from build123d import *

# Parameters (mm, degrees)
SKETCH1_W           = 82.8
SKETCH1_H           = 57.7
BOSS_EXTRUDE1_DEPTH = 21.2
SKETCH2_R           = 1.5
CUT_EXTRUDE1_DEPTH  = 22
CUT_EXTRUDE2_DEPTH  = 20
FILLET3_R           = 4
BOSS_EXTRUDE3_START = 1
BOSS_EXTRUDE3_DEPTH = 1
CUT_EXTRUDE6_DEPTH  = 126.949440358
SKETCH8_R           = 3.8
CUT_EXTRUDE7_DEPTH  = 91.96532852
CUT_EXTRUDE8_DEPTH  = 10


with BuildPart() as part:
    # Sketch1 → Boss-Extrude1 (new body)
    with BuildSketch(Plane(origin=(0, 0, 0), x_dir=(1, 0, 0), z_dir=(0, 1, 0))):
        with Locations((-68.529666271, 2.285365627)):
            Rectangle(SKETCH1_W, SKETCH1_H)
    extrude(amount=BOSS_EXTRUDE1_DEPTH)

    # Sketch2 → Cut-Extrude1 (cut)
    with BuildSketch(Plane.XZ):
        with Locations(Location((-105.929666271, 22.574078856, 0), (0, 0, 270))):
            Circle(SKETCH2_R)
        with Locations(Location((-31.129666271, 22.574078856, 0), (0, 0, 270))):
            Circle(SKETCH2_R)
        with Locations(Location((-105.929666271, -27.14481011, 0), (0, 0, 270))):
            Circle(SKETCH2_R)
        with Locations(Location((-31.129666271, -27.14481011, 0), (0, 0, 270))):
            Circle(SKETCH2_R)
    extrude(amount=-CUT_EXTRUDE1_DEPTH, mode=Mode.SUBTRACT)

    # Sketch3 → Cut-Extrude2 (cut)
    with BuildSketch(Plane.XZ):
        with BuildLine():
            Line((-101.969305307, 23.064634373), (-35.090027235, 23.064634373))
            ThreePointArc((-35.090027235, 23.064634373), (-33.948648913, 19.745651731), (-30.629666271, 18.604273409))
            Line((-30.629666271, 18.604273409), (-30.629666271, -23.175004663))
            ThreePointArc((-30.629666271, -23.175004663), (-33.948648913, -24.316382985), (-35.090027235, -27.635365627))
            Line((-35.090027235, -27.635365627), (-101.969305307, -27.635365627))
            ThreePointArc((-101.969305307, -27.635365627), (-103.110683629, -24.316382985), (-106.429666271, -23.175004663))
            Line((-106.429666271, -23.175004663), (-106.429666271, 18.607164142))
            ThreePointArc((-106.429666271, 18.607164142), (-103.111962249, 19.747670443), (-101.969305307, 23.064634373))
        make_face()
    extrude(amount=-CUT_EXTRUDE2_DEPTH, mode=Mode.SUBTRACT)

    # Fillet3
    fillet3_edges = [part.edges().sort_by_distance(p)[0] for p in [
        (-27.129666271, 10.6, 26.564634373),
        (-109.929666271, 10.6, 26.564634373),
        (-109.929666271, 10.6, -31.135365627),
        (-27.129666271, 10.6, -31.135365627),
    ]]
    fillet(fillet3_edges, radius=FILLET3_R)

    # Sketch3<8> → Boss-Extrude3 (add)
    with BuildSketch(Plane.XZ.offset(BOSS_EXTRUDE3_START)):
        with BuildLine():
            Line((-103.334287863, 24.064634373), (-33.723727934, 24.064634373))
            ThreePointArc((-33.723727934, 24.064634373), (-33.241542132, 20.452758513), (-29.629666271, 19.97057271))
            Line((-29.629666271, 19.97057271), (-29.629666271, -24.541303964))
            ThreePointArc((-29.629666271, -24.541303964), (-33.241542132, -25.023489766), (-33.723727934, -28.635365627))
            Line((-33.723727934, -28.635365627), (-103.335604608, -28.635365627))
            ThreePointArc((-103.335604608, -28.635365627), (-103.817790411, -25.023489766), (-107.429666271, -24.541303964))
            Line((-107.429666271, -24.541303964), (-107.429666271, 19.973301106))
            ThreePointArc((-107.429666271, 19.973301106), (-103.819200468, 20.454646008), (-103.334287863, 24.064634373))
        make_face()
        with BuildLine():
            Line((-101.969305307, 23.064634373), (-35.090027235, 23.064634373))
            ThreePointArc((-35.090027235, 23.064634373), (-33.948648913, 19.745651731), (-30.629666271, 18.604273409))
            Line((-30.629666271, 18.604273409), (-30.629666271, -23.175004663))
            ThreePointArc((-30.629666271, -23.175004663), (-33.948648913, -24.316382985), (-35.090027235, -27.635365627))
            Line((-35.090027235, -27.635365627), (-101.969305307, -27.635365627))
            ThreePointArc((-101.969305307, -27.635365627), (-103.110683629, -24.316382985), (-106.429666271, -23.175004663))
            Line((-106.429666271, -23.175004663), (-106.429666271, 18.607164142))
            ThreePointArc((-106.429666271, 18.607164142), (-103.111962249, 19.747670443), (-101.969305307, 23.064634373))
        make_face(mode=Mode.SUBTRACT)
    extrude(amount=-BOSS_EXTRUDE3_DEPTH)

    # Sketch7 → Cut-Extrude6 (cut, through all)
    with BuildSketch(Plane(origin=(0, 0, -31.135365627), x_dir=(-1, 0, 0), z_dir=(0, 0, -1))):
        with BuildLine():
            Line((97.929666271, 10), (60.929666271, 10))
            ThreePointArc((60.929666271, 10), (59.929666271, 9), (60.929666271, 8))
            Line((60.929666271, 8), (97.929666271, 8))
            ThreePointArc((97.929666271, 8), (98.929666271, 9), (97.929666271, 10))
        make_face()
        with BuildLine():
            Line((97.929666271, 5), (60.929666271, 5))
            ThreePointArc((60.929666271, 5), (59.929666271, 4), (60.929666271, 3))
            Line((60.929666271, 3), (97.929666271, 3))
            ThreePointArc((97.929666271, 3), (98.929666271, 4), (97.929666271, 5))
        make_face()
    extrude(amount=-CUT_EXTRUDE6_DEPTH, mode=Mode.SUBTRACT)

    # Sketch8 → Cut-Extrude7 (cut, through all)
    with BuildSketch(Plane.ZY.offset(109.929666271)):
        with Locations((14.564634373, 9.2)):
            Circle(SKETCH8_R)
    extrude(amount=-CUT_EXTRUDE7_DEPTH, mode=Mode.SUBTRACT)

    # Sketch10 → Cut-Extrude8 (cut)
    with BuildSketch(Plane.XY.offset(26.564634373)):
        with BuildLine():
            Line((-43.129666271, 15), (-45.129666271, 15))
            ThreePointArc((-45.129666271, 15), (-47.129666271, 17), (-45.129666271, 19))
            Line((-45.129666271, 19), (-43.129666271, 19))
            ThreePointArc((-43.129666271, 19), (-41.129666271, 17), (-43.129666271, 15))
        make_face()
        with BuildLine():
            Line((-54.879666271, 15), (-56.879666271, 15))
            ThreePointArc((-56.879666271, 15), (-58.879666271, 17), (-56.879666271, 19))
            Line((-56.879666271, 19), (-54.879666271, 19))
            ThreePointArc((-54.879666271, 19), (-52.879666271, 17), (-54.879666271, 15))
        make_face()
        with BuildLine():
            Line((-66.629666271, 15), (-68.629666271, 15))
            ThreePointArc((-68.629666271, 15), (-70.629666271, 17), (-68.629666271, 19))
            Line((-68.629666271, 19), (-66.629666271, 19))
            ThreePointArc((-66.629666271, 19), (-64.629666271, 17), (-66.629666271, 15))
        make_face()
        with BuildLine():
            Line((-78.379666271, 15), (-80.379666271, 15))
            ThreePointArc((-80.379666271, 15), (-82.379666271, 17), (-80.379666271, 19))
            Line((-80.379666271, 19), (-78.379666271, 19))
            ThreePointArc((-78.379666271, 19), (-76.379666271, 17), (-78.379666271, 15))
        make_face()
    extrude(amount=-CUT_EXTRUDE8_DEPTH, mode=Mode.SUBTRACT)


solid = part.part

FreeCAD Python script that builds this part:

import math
import FreeCAD as App
import Part
import Sketcher
from FreeCAD import Vector


def edges_at(feature, points):
    """Names of the edges that pass closest to the given points."""
    edges = feature.Shape.Edges
    near = lambda p: min(range(len(edges)), key=lambda i: edges[i].distToShape(Part.Vertex(*p))[0])
    return sorted({f"Edge{near(p) + 1}" for p in points})

doc = App.newDocument("Part")
body = doc.addObject("PartDesign::Body", "Body")

sketch1 = body.newObject("Sketcher::SketchObject", "Sketch")
sketch1.AttachmentSupport = (doc.getObject("XZ_Plane"), [""])
sketch1.MapMode = "FlatFace"
sketch1.addGeometry([
    Part.LineSegment(Vector(-110, -31, 0), Vector(-110, 27, 0)),
    Part.LineSegment(Vector(-110, 27, 0), Vector(-27, 27, 0)),
    Part.LineSegment(Vector(-27, 27, 0), Vector(-27, -31, 0)),
    Part.LineSegment(Vector(-27, -31, 0), Vector(-110, -31, 0)),
], False)
sketch1.addConstraint([
    Sketcher.Constraint("Coincident", 0, 2, 1, 1),
    Sketcher.Constraint("Coincident", 1, 2, 2, 1),
    Sketcher.Constraint("Coincident", 2, 2, 3, 1),
    Sketcher.Constraint("Coincident", 3, 2, 0, 1),
    Sketcher.Constraint("Vertical", 0),
    Sketcher.Constraint("Horizontal", 1),
    Sketcher.Constraint("Vertical", 2),
    Sketcher.Constraint("Horizontal", 3),
    Sketcher.Constraint("DistanceX", 1, 1, 1, 2, 82.8),
    Sketcher.Constraint("DistanceY", 0, 1, 0, 2, 57.7),
    Sketcher.Constraint("DistanceX", 0, 2, -1, 1, 109.929666),
    Sketcher.Constraint("DistanceY", -1, 1, 0, 2, 26.564634),
])
pad1 = body.newObject("PartDesign::Pad", "Pad")
pad1.Profile = sketch1
pad1.Length = 21.2
pad1.Reversed = True

sketch2 = body.newObject("Sketcher::SketchObject", "Sketch001")
sketch2.AttachmentSupport = (doc.getObject("XZ_Plane"), [""])
sketch2.MapMode = "FlatFace"
sketch2.addGeometry([
    Part.Circle(Vector(-105.9, 22.6, 0), Vector(0, 0, 1), 1.5),
    Part.Circle(Vector(-31.1, 22.6, 0), Vector(0, 0, 1), 1.5),
    Part.Circle(Vector(-105.9, -27.1, 0), Vector(0, 0, 1), 1.5),
    Part.Circle(Vector(-31.1, -27.1, 0), Vector(0, 0, 1), 1.5),
], False)
sketch2.addConstraint([
    Sketcher.Constraint("Equal", 0, 1),
    Sketcher.Constraint("Equal", 1, 2),
    Sketcher.Constraint("Equal", 2, 3),
    Sketcher.Constraint("Horizontal", 0, 3, 1, 3),
    Sketcher.Constraint("Horizontal", 2, 3, 3, 3),
    Sketcher.Constraint("Vertical", 0, 3, 2, 3),
    Sketcher.Constraint("Vertical", 1, 3, 3, 3),
    Sketcher.Constraint("Diameter", 0, 3.0),
    Sketcher.Constraint("DistanceX", 0, 3, 1, 3, 74.8),
    Sketcher.Constraint("DistanceY", -1, 1, 0, 3, 22.574079),
    Sketcher.Constraint("DistanceY", 2, 3, -1, 1, 27.14481),
    Sketcher.Constraint("DistanceX", 0, 3, -1, 1, 105.929666),
])
pocket1 = body.newObject("PartDesign::Pocket", "Pocket")
pocket1.Profile = sketch2
pocket1.Length = 22

sketch3 = body.newObject("Sketcher::SketchObject", "Sketch002")
sketch3.AttachmentSupport = (doc.getObject("XZ_Plane"), [""])
sketch3.MapMode = "FlatFace"
sketch3.addGeometry([
    Part.LineSegment(Vector(-35.1, 23.1, 0), Vector(-102, 23.1, 0)),
    Part.ArcOfCircle(Part.Circle(Vector(-105.9, 22.6, 0), Vector(0, 0, 1), 4), math.radians(-97), math.radians(7)),
    Part.LineSegment(Vector(-106.4, 18.6, 0), Vector(-106.4, -23.2, 0)),
    Part.ArcOfCircle(Part.Circle(Vector(-105.9, -27.1, 0), Vector(0, 0, 1), 4), math.radians(-7), math.radians(97)),
    Part.LineSegment(Vector(-102, -27.6, 0), Vector(-35.1, -27.6, 0)),
    Part.ArcOfCircle(Part.Circle(Vector(-31.1, -27.1, 0), Vector(0, 0, 1), 4), math.radians(83), math.radians(187)),
    Part.LineSegment(Vector(-30.6, -23.2, 0), Vector(-30.6, 18.6, 0)),
    Part.ArcOfCircle(Part.Circle(Vector(-31.1, 22.6, 0), Vector(0, 0, 1), 4), math.radians(173), math.radians(277)),
], False)
sketch3.addConstraint([
    Sketcher.Constraint("Coincident", 0, 2, 1, 2),
    Sketcher.Constraint("Coincident", 1, 1, 2, 1),
    Sketcher.Constraint("Coincident", 2, 2, 3, 2),
    Sketcher.Constraint("Coincident", 3, 1, 4, 1),
    Sketcher.Constraint("Coincident", 4, 2, 5, 2),
    Sketcher.Constraint("Coincident", 5, 1, 6, 1),
    Sketcher.Constraint("Coincident", 6, 2, 7, 2),
    Sketcher.Constraint("Coincident", 7, 1, 0, 1),
    Sketcher.Constraint("Horizontal", 0),
    Sketcher.Constraint("Vertical", 2),
    Sketcher.Constraint("Horizontal", 4),
    Sketcher.Constraint("Vertical", 6),
    Sketcher.Constraint("Equal", 1, 3),
    Sketcher.Constraint("Equal", 3, 5),
    Sketcher.Constraint("Equal", 5, 7),
    Sketcher.Constraint("Horizontal", 3, 3, 5, 3),
    Sketcher.Constraint("Horizontal", 2, 2, 5, 1),
    Sketcher.Constraint("Vertical", 5, 3, 7, 3),
    Sketcher.Constraint("Vertical", 0, 2, 3, 1),
    Sketcher.Constraint("Vertical", 4, 2, 7, 1),
    Sketcher.Constraint("Radius", 1, 4.0),
    Sketcher.Constraint("DistanceY", 3, 1, 0, 2, 50.7),
    Sketcher.Constraint("DistanceX", 0, 2, 0, 1, 66.879278),
    Sketcher.Constraint("DistanceY", 2, 2, 2, 1, 41.782169),
    Sketcher.Constraint("DistanceY", 6, 1, 6, 2, 41.779278),
    Sketcher.Constraint("DistanceX", 3, 3, -1, 1, 105.939111),
    Sketcher.Constraint("DistanceY", 3, 3, -1, 1, 27.14481),
    Sketcher.Constraint("DistanceX", 5, 3, -1, 1, 31.120222),
])
pocket2 = body.newObject("PartDesign::Pocket", "Pocket001")
pocket2.Profile = sketch3
pocket2.Length = 20
doc.recompute()

fillet = body.newObject("PartDesign::Fillet", "Fillet")
fillet.Base = (pocket2, edges_at(pocket2, [
    (-27.13, 10.6, 26.565),
    (-109.93, 10.6, 26.565),
    (-109.93, 10.6, -31.135),
    (-27.13, 10.6, -31.135),
]))
fillet.Radius = 4

sketch4 = body.newObject("Sketcher::SketchObject", "Sketch003")
sketch4.AttachmentSupport = (doc.getObject("XZ_Plane"), [""])
sketch4.MapMode = "FlatFace"
sketch4.AttachmentOffset = App.Placement(Vector(0, 0, 1), App.Rotation())
sketch4.addGeometry([
    Part.LineSegment(Vector(-33.7, 24.1, 0), Vector(-103.3, 24.1, 0)),
    Part.ArcOfCircle(Part.Circle(Vector(-105.9, 22.6, 0), Vector(0, 0, 1), 3), math.radians(-120), math.radians(30)),
    Part.LineSegment(Vector(-107.4, 20, 0), Vector(-107.4, -24.5, 0)),
    Part.ArcOfCircle(Part.Circle(Vector(-105.9, -27.1, 0), Vector(0, 0, 1), 3), math.radians(-30), math.radians(120)),
    Part.LineSegment(Vector(-103.3, -28.6, 0), Vector(-33.7, -28.6, 0)),
    Part.ArcOfCircle(Part.Circle(Vector(-31.1, -27.1, 0), Vector(0, 0, 1), 3), math.radians(60), math.radians(210)),
    Part.LineSegment(Vector(-29.6, -24.5, 0), Vector(-29.6, 20, 0)),
    Part.ArcOfCircle(Part.Circle(Vector(-31.1, 22.6, 0), Vector(0, 0, 1), 3), math.radians(150), math.radians(300)),
    Part.LineSegment(Vector(-102, 23.1, 0), Vector(-35.1, 23.1, 0)),
    Part.ArcOfCircle(Part.Circle(Vector(-31.1, 22.6, 0), Vector(0, 0, 1), 4), math.radians(173), math.radians(277)),
    Part.LineSegment(Vector(-30.6, 18.6, 0), Vector(-30.6, -23.2, 0)),
    Part.ArcOfCircle(Part.Circle(Vector(-31.1, -27.1, 0), Vector(0, 0, 1), 4), math.radians(83), math.radians(187)),
    Part.LineSegment(Vector(-35.1, -27.6, 0), Vector(-102, -27.6, 0)),
    Part.ArcOfCircle(Part.Circle(Vector(-105.9, -27.1, 0), Vector(0, 0, 1), 4), math.radians(-7), math.radians(97)),
    Part.LineSegment(Vector(-106.4, -23.2, 0), Vector(-106.4, 18.6, 0)),
    Part.ArcOfCircle(Part.Circle(Vector(-105.9, 22.6, 0), Vector(0, 0, 1), 4), math.radians(-97), math.radians(7)),
], False)
sketch4.addConstraint([
    Sketcher.Constraint("Coincident", 0, 2, 1, 2),
    Sketcher.Constraint("Coincident", 1, 1, 2, 1),
    Sketcher.Constraint("Coincident", 2, 2, 3, 2),
    Sketcher.Constraint("Coincident", 3, 1, 4, 1),
    Sketcher.Constraint("Coincident", 4, 2, 5, 2),
    Sketcher.Constraint("Coincident", 5, 1, 6, 1),
    Sketcher.Constraint("Coincident", 6, 2, 7, 2),
    Sketcher.Constraint("Coincident", 7, 1, 0, 1),
    Sketcher.Constraint("Coincident", 8, 2, 9, 1),
    Sketcher.Constraint("Coincident", 9, 2, 10, 1),
    Sketcher.Constraint("Coincident", 10, 2, 11, 1),
    Sketcher.Constraint("Coincident", 11, 2, 12, 1),
    Sketcher.Constraint("Coincident", 12, 2, 13, 1),
    Sketcher.Constraint("Coincident", 13, 2, 14, 1),
    Sketcher.Constraint("Coincident", 14, 2, 15, 1),
    Sketcher.Constraint("Coincident", 15, 2, 8, 1),
    Sketcher.Constraint("Horizontal", 0),
    Sketcher.Constraint("Vertical", 2),
    Sketcher.Constraint("Horizontal", 4),
    Sketcher.Constraint("Vertical", 6),
    Sketcher.Constraint("Horizontal", 8),
    Sketcher.Constraint("Vertical", 10),
    Sketcher.Constraint("Horizontal", 12),
    Sketcher.Constraint("Vertical", 14),
    Sketcher.Constraint("Coincident", 9, 3, 7, 3),
    Sketcher.Constraint("Coincident", 11, 3, 5, 3),
    Sketcher.Constraint("Coincident", 13, 3, 3, 3),
    Sketcher.Constraint("Coincident", 15, 3, 1, 3),
    Sketcher.Constraint("Equal", 1, 3),
    Sketcher.Constraint("Equal", 3, 5),
    Sketcher.Constraint("Equal", 5, 7),
    Sketcher.Constraint("Equal", 9, 11),
    Sketcher.Constraint("Equal", 11, 13),
    Sketcher.Constraint("Equal", 13, 15),
    Sketcher.Constraint("Horizontal", 3, 3, 5, 3),
    Sketcher.Constraint("Horizontal", 2, 2, 5, 1),
    Sketcher.Constraint("Horizontal", 10, 2, 13, 2),
    Sketcher.Constraint("Vertical", 5, 3, 7, 3),
    Sketcher.Constraint("Vertical", 4, 2, 7, 1),
    Sketcher.Constraint("Vertical", 8, 2, 11, 2),
    Sketcher.Constraint("Vertical", 12, 2, 15, 2),
    Sketcher.Constraint("Radius", 1, 3.0),
    Sketcher.Constraint("Radius", 9, 4.0),
    Sketcher.Constraint("DistanceY", 8, 2, 7, 1, 1.0),
    Sketcher.Constraint("DistanceX", 9, 2, 6, 2, 1.0),
    Sketcher.Constraint("DistanceX", 0, 2, 0, 1, 69.61056),
    Sketcher.Constraint("DistanceX", 8, 1, 8, 2, 66.879278),
    Sketcher.Constraint("DistanceY", 10, 2, 10, 1, 41.779278),
    Sketcher.Constraint("DistanceY", 14, 1, 14, 2, 41.782169),
    Sketcher.Constraint("DistanceY", -1, 1, 1, 1, 19.973301),
    Sketcher.Constraint("DistanceY", 9, 2, 6, 2, 1.366299),
    Sketcher.Constraint("DistanceX", 3, 3, -1, 1, 105.939111),
])
pad2 = body.newObject("PartDesign::Pad", "Pad001")
pad2.Profile = sketch4
pad2.Length = 1
pad2.Reversed = True

sketch5 = body.newObject("Sketcher::SketchObject", "Sketch004")
sketch5.AttachmentSupport = (doc.getObject("XY_Plane"), [""])
sketch5.MapMode = "FlatFace"
sketch5.AttachmentOffset = App.Placement(Vector(0, 0, -31.135366), App.Rotation())
sketch5.addGeometry([
    Part.LineSegment(Vector(-97.9, 10, 0), Vector(-60.9, 10, 0)),
    Part.ArcOfCircle(Part.Circle(Vector(-60.9, 9, 0), Vector(0, 0, 1), 1), math.radians(-90), math.radians(90)),
    Part.LineSegment(Vector(-60.9, 8, 0), Vector(-97.9, 8, 0)),
    Part.ArcOfCircle(Part.Circle(Vector(-97.9, 9, 0), Vector(0, 0, 1), 1), math.radians(90), math.radians(270)),
    Part.LineSegment(Vector(-97.9, 5, 0), Vector(-60.9, 5, 0)),
    Part.ArcOfCircle(Part.Circle(Vector(-60.9, 4, 0), Vector(0, 0, 1), 1), math.radians(-90), math.radians(90)),
    Part.LineSegment(Vector(-60.9, 3, 0), Vector(-97.9, 3, 0)),
    Part.ArcOfCircle(Part.Circle(Vector(-97.9, 4, 0), Vector(0, 0, 1), 1), math.radians(90), math.radians(270)),
], False)
sketch5.addConstraint([
    Sketcher.Constraint("Tangent", 0, 2, 1, 2),
    Sketcher.Constraint("Tangent", 1, 1, 2, 1),
    Sketcher.Constraint("Tangent", 2, 2, 3, 2),
    Sketcher.Constraint("Tangent", 3, 1, 0, 1),
    Sketcher.Constraint("Tangent", 4, 2, 5, 2),
    Sketcher.Constraint("Tangent", 5, 1, 6, 1),
    Sketcher.Constraint("Tangent", 6, 2, 7, 2),
    Sketcher.Constraint("Tangent", 7, 1, 4, 1),
    Sketcher.Constraint("Horizontal", 0),
    Sketcher.Constraint("Horizontal", 2),
    Sketcher.Constraint("Horizontal", 4),
    Sketcher.Constraint("Horizontal", 6),
    Sketcher.Constraint("Equal", 3, 5),
    Sketcher.Constraint("Vertical", 1, 3, 5, 3),
    Sketcher.Constraint("Vertical", 3, 3, 7, 3),
    Sketcher.Constraint("Radius", 1, 1.0),
    Sketcher.Constraint("DistanceX", 0, 1, 0, 2, 37.0),
    Sketcher.Constraint("DistanceY", -1, 1, 1, 3, 9.0),
    Sketcher.Constraint("DistanceY", -1, 1, 5, 3, 4.0),
    Sketcher.Constraint("DistanceX", 1, 3, -1, 1, 60.929666),
])
pocket3 = body.newObject("PartDesign::Pocket", "Pocket002")
pocket3.Profile = sketch5
pocket3.Type = "ThroughAll"
pocket3.Reversed = True

sketch6 = body.newObject("Sketcher::SketchObject", "Sketch005")
sketch6.AttachmentSupport = (doc.getObject("YZ_Plane"), [""])
sketch6.MapMode = "FlatFace"
sketch6.AttachmentOffset = App.Placement(Vector(0, 0, -109.929666), App.Rotation())
sketch6.addGeometry(Part.Circle(Vector(9.2, 14.6, 0), Vector(0, 0, 1), 3.8), False)
sketch6.addConstraint([
    Sketcher.Constraint("Diameter", 0, 7.6),
    Sketcher.Constraint("DistanceX", -1, 1, 0, 3, 9.2),
    Sketcher.Constraint("DistanceY", -1, 1, 0, 3, 14.564634),
])
pocket4 = body.newObject("PartDesign::Pocket", "Pocket003")
pocket4.Profile = sketch6
pocket4.Type = "ThroughAll"
pocket4.Reversed = True

sketch7 = body.newObject("Sketcher::SketchObject", "Sketch006")
sketch7.AttachmentSupport = (doc.getObject("XY_Plane"), [""])
sketch7.MapMode = "FlatFace"
sketch7.AttachmentOffset = App.Placement(Vector(0, 0, 26.564634), App.Rotation())
sketch7.addGeometry([
    Part.LineSegment(Vector(-45.1, 15, 0), Vector(-43.1, 15, 0)),
    Part.ArcOfCircle(Part.Circle(Vector(-43.1, 17, 0), Vector(0, 0, 1), 2), math.radians(-90), math.radians(90)),
    Part.LineSegment(Vector(-43.1, 19, 0), Vector(-45.1, 19, 0)),
    Part.ArcOfCircle(Part.Circle(Vector(-45.1, 17, 0), Vector(0, 0, 1), 2), math.radians(90), math.radians(270)),
    Part.LineSegment(Vector(-56.9, 15, 0), Vector(-54.9, 15, 0)),
    Part.ArcOfCircle(Part.Circle(Vector(-54.9, 17, 0), Vector(0, 0, 1), 2), math.radians(-90), math.radians(90)),
    Part.LineSegment(Vector(-54.9, 19, 0), Vector(-56.9, 19, 0)),
    Part.ArcOfCircle(Part.Circle(Vector(-56.9, 17, 0), Vector(0, 0, 1), 2), math.radians(90), math.radians(270)),
    Part.LineSegment(Vector(-68.6, 15, 0), Vector(-66.6, 15, 0)),
    Part.ArcOfCircle(Part.Circle(Vector(-66.6, 17, 0), Vector(0, 0, 1), 2), math.radians(-90), math.radians(90)),
    Part.LineSegment(Vector(-66.6, 19, 0), Vector(-68.6, 19, 0)),
    Part.ArcOfCircle(Part.Circle(Vector(-68.6, 17, 0), Vector(0, 0, 1), 2), math.radians(90), math.radians(270)),
    Part.LineSegment(Vector(-80.4, 15, 0), Vector(-78.4, 15, 0)),
    Part.ArcOfCircle(Part.Circle(Vector(-78.4, 17, 0), Vector(0, 0, 1), 2), math.radians(-90), math.radians(90)),
    Part.LineSegment(Vector(-78.4, 19, 0), Vector(-80.4, 19, 0)),
    Part.ArcOfCircle(Part.Circle(Vector(-80.4, 17, 0), Vector(0, 0, 1), 2), math.radians(90), math.radians(270)),
], False)
sketch7.addConstraint([
    Sketcher.Constraint("Tangent", 0, 2, 1, 1),
    Sketcher.Constraint("Tangent", 1, 2, 2, 1),
    Sketcher.Constraint("Tangent", 2, 2, 3, 1),
    Sketcher.Constraint("Tangent", 3, 2, 0, 1),
    Sketcher.Constraint("Tangent", 4, 2, 5, 1),
    Sketcher.Constraint("Tangent", 5, 2, 6, 1),
    Sketcher.Constraint("Tangent", 6, 2, 7, 1),
    Sketcher.Constraint("Tangent", 7, 2, 4, 1),
    Sketcher.Constraint("Tangent", 8, 2, 9, 1),
    Sketcher.Constraint("Tangent", 9, 2, 10, 1),
    Sketcher.Constraint("Tangent", 10, 2, 11, 1),
    Sketcher.Constraint("Tangent", 11, 2, 8, 1),
    Sketcher.Constraint("Tangent", 12, 2, 13, 1),
    Sketcher.Constraint("Tangent", 13, 2, 14, 1),
    Sketcher.Constraint("Tangent", 14, 2, 15, 1),
    Sketcher.Constraint("Tangent", 15, 2, 12, 1),
    Sketcher.Constraint("Horizontal", 0),
    Sketcher.Constraint("Horizontal", 2),
    Sketcher.Constraint("Horizontal", 4),
    Sketcher.Constraint("Horizontal", 6),
    Sketcher.Constraint("Horizontal", 8),
    Sketcher.Constraint("Horizontal", 10),
    Sketcher.Constraint("Horizontal", 12),
    Sketcher.Constraint("Horizontal", 14),
    Sketcher.Constraint("Equal", 3, 5),
    Sketcher.Constraint("Equal", 7, 9),
    Sketcher.Constraint("Equal", 11, 13),
    Sketcher.Constraint("Horizontal", 3, 3, 5, 3),
    Sketcher.Constraint("Horizontal", 7, 3, 9, 3),
    Sketcher.Constraint("Horizontal", 11, 3, 13, 3),
    Sketcher.Constraint("Equal", 2, 4),
    Sketcher.Constraint("Equal", 6, 8),
    Sketcher.Constraint("Equal", 10, 12),
    Sketcher.Constraint("Radius", 1, 2.0),
    Sketcher.Constraint("DistanceX", 0, 1, 0, 2, 2.0),
    Sketcher.Constraint("DistanceY", -1, 1, 1, 3, 17.0),
    Sketcher.Constraint("DistanceX", 9, 3, 3, 3, 21.5),
    Sketcher.Constraint("DistanceX", 13, 3, 7, 3, 21.5),
    Sketcher.Constraint("DistanceX", 5, 3, 3, 3, 9.75),
    Sketcher.Constraint("DistanceX", 1, 3, -1, 1, 43.129666),
])
pocket5 = body.newObject("PartDesign::Pocket", "Pocket004")
pocket5.Profile = sketch7
pocket5.Length = 10

doc.recompute()
